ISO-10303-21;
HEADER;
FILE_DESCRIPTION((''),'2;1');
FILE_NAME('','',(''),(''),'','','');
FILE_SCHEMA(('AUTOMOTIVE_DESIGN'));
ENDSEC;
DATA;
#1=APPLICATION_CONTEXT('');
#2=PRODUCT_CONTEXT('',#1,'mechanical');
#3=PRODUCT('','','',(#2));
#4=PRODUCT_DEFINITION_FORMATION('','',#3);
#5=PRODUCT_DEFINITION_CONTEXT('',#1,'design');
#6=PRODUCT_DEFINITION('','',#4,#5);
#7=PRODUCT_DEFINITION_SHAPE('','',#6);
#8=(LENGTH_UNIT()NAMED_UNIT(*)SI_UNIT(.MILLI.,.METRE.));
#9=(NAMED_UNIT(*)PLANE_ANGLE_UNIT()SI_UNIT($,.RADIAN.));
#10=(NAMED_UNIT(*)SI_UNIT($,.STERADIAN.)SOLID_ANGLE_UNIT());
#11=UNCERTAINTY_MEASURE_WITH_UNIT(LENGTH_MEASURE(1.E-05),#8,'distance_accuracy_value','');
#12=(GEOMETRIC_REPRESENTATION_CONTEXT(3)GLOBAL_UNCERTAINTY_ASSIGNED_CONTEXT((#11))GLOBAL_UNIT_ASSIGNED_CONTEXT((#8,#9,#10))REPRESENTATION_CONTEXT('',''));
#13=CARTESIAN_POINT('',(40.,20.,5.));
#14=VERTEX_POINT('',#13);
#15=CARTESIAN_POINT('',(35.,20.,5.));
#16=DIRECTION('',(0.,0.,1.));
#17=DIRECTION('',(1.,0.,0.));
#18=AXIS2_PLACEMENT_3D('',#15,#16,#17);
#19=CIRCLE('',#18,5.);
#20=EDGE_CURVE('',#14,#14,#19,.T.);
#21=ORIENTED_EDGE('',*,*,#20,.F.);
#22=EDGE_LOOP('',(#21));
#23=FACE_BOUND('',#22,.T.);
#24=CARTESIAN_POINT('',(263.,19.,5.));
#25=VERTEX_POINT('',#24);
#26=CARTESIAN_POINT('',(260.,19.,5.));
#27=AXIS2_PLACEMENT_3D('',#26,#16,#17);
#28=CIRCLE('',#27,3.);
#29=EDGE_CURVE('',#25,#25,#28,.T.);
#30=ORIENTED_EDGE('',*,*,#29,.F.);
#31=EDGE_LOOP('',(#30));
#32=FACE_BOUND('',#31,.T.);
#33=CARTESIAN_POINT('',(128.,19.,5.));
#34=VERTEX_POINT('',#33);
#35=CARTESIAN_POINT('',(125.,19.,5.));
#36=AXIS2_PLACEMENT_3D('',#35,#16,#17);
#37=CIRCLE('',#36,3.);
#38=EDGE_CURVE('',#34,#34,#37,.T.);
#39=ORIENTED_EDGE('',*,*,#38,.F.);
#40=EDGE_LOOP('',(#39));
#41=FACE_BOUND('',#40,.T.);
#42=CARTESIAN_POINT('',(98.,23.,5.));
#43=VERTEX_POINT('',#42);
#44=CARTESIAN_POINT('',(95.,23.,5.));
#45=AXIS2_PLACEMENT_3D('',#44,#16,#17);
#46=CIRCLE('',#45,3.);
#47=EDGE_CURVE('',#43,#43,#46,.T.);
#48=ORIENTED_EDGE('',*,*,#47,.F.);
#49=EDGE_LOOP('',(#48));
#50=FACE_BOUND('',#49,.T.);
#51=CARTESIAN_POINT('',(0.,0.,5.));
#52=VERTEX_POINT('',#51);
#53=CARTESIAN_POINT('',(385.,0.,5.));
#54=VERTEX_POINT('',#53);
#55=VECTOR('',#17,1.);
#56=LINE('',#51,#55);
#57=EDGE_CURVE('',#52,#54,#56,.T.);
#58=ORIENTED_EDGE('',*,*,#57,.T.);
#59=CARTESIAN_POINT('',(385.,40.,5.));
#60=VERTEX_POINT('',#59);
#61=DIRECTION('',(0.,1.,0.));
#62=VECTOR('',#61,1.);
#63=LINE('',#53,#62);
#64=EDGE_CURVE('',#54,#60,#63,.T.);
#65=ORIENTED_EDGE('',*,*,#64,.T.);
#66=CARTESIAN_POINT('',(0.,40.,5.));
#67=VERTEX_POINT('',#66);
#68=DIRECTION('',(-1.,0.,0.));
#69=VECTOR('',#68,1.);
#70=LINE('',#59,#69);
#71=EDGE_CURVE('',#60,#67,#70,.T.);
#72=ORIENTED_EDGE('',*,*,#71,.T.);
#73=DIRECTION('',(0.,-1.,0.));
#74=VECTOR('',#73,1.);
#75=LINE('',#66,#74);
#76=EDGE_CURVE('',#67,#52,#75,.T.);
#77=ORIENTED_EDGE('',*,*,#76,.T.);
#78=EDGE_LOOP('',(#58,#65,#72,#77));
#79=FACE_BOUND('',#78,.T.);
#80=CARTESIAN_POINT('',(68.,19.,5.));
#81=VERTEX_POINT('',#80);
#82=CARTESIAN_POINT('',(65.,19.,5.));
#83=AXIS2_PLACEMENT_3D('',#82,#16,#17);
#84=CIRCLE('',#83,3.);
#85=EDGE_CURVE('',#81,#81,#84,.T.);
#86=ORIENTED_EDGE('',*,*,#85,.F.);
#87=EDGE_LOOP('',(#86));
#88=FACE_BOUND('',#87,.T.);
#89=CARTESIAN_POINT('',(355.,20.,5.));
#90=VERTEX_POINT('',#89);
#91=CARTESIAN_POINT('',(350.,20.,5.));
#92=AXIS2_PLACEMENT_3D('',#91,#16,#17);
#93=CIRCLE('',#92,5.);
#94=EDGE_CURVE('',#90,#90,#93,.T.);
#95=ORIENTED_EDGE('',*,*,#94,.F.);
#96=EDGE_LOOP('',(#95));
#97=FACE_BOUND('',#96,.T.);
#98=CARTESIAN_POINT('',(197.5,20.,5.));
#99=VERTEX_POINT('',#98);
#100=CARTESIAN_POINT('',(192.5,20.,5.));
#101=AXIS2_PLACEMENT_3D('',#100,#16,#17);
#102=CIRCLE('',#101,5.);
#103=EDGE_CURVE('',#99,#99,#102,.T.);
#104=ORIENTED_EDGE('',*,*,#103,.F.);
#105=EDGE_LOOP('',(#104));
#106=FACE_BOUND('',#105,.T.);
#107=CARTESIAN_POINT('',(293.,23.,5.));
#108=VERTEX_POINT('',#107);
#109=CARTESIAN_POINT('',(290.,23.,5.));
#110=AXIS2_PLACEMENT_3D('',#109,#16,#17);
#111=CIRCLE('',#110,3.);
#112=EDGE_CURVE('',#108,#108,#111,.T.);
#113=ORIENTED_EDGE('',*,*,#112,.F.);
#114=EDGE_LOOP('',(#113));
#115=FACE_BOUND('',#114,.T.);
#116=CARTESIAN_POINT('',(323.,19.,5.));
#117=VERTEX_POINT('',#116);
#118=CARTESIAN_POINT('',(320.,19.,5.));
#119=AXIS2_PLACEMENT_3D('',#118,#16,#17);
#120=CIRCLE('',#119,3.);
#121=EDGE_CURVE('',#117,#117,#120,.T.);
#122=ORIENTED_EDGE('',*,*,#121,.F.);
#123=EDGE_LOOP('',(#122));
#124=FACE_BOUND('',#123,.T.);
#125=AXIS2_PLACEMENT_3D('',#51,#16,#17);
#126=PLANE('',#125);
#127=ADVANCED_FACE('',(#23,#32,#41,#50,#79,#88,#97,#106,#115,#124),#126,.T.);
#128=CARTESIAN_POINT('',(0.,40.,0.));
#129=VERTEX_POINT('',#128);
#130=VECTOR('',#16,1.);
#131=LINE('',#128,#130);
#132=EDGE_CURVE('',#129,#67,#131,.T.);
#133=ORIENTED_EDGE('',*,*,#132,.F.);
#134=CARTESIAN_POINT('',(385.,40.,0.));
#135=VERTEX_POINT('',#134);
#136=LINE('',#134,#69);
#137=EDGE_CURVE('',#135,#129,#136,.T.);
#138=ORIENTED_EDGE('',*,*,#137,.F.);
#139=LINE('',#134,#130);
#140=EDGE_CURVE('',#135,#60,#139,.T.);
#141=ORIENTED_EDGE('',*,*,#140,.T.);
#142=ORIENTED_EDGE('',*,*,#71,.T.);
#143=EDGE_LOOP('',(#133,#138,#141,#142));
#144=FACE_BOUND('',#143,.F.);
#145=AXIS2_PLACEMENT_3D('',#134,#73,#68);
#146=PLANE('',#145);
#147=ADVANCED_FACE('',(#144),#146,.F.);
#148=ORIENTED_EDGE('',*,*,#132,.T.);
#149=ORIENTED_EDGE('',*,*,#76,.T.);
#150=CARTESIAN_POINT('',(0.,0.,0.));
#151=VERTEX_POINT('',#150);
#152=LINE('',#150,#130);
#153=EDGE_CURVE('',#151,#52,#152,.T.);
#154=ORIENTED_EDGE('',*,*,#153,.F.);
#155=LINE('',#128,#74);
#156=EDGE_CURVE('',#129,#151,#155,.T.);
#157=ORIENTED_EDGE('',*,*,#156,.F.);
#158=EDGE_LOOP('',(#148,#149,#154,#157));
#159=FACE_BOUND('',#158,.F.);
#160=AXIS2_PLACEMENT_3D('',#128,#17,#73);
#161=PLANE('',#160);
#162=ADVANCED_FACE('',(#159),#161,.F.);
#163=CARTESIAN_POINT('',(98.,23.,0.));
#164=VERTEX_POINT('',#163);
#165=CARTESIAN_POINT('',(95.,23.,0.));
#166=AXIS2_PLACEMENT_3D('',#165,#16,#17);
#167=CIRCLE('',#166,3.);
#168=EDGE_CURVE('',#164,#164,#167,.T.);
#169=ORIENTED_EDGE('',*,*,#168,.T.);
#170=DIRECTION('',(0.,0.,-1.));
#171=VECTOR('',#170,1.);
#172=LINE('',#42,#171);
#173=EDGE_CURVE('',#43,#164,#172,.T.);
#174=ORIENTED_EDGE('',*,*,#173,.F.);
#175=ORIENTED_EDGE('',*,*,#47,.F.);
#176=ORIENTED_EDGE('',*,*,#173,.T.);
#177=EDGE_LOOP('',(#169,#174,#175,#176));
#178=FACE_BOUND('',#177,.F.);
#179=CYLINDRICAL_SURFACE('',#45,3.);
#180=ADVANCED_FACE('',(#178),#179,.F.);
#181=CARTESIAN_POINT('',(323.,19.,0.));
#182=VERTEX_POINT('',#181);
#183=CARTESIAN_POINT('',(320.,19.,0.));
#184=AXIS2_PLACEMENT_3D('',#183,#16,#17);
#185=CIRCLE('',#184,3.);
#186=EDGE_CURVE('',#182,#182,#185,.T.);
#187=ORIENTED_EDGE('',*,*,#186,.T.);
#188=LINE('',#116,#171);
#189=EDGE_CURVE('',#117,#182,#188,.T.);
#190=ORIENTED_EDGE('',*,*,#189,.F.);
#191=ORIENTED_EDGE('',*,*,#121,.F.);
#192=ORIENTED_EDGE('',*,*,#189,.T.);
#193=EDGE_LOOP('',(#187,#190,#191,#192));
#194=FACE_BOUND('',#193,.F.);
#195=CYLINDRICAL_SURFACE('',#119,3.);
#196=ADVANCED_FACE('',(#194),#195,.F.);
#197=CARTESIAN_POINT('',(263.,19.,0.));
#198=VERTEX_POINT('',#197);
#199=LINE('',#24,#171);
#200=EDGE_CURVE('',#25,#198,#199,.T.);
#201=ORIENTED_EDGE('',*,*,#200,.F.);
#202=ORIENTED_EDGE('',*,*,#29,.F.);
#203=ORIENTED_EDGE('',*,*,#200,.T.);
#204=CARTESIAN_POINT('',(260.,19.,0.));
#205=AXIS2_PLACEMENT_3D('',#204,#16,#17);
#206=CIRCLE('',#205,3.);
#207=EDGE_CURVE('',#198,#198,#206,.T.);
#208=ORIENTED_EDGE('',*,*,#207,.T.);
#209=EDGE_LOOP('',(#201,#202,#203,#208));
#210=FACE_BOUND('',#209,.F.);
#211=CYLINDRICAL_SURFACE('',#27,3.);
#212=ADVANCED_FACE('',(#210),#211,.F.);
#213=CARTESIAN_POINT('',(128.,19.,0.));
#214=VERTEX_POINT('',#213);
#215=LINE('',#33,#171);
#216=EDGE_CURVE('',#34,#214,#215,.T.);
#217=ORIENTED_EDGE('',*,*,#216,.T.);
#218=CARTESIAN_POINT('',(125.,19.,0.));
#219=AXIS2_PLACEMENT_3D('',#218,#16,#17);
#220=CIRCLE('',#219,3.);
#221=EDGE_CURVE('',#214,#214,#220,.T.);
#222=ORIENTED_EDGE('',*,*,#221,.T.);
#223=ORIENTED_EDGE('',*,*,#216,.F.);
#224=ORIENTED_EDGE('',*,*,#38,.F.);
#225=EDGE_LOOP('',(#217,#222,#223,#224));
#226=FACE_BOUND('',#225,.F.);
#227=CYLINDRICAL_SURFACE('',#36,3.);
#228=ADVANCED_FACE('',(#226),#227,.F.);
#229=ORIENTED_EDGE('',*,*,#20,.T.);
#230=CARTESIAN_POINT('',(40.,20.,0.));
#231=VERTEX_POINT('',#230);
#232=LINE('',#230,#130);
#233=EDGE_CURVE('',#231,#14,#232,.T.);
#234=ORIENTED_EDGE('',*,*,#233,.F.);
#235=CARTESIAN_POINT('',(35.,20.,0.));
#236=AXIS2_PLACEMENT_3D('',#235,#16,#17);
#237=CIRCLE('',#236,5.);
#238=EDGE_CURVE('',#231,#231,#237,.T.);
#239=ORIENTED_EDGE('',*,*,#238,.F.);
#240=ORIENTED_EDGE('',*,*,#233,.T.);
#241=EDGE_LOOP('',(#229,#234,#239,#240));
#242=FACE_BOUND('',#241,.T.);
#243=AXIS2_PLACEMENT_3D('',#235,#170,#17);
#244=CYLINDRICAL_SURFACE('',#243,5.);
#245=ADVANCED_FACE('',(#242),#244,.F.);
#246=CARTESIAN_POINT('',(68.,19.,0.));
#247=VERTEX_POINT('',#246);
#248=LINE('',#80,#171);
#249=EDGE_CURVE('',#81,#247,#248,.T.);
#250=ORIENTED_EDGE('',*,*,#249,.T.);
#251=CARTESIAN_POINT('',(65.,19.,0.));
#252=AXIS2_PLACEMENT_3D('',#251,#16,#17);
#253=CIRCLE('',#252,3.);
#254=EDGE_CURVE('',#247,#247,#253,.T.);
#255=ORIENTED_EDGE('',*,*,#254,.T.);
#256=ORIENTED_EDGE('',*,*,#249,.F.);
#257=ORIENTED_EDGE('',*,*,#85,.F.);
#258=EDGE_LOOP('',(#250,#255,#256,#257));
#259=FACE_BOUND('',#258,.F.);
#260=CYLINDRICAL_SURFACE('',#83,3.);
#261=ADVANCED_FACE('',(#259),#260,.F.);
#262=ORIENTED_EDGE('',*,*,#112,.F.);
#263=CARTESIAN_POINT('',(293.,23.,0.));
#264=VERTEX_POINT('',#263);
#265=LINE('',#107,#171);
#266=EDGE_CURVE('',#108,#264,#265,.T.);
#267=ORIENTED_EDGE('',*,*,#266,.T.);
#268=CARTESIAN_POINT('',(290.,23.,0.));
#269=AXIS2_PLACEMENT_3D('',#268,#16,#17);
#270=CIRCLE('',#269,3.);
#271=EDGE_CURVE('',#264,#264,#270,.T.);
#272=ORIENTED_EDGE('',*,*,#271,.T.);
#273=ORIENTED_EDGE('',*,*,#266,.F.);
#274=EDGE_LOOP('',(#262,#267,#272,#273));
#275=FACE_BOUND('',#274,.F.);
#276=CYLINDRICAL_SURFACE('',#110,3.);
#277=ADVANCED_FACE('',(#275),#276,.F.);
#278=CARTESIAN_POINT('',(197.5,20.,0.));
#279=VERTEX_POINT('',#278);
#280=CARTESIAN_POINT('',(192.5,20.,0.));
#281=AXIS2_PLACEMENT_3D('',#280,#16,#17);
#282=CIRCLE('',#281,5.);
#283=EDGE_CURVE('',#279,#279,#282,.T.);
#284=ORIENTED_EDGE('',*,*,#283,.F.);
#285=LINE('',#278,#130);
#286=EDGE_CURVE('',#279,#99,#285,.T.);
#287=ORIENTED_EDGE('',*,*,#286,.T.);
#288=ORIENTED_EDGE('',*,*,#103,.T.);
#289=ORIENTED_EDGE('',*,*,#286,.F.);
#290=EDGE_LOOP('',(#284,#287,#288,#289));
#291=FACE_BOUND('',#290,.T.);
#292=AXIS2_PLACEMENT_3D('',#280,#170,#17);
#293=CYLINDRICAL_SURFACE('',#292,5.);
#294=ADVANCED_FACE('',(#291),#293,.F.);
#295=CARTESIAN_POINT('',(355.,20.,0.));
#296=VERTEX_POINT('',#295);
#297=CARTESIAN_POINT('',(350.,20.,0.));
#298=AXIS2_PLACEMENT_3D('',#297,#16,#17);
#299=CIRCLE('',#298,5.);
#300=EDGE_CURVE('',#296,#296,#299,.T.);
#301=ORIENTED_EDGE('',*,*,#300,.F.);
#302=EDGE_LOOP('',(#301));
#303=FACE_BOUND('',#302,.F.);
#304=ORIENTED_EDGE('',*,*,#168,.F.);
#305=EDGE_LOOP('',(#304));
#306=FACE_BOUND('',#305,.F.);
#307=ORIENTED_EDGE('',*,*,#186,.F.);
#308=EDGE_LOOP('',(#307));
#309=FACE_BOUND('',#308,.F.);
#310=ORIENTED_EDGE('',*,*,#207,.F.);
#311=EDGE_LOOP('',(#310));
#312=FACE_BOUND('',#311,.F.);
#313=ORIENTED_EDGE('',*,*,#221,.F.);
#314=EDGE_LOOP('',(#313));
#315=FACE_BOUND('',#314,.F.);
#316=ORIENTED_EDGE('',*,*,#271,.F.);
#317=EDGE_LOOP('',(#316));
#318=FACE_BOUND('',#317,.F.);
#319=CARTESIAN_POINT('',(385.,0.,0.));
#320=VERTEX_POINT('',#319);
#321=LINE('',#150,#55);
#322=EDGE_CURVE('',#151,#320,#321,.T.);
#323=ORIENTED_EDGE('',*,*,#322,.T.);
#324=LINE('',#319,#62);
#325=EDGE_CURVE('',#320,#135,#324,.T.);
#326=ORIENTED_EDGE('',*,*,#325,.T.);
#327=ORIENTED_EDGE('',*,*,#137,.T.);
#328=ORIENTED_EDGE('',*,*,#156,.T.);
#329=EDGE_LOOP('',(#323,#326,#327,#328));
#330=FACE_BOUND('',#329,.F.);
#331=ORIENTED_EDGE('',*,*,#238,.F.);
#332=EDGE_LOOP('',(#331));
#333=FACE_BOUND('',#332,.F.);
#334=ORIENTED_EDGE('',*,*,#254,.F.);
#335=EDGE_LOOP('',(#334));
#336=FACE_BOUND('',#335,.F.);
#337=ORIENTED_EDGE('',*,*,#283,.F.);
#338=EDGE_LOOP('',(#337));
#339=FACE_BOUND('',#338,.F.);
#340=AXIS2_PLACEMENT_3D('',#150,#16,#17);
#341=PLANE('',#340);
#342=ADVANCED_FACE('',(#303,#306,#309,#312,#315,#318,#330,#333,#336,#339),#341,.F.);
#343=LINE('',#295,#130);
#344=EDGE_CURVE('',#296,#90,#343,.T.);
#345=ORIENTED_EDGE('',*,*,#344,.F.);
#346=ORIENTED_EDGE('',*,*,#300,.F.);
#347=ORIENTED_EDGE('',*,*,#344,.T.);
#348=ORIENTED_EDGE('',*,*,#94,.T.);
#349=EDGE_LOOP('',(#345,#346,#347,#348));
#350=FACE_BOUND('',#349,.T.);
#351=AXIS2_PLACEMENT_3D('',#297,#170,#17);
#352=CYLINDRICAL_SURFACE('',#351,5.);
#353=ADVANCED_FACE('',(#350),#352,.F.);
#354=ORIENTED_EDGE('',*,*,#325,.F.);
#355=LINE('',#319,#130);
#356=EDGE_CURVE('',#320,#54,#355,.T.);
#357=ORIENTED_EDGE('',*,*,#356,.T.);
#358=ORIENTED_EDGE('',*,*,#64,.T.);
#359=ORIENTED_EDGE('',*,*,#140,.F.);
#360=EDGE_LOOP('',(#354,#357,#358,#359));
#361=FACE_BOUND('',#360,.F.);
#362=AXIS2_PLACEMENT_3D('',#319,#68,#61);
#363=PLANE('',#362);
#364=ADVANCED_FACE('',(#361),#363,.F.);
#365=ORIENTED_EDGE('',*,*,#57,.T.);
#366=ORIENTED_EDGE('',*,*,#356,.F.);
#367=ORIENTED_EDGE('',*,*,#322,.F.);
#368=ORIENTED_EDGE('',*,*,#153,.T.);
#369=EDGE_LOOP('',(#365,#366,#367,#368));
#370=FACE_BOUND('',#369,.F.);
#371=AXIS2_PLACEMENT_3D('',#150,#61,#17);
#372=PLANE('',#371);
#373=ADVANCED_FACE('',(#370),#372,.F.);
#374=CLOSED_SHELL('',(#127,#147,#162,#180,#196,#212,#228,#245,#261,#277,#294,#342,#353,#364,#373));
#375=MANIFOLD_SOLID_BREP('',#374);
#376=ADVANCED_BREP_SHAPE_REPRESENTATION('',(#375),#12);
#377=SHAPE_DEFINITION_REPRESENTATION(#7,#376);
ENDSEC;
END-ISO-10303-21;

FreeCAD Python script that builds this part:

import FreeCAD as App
import Part
import Sketcher

V = App.Vector
Q = App.Units.Quantity


def add_polygon(sketch, points):
    """Adds a closed chain of lines whose ends are joined by coincident constraints."""
    first, n = sketch.GeometryCount, len(points)
    for a, b in zip(points, points[1:] + points[:1]):
        sketch.addGeometry(Part.LineSegment(App.Vector(*a, 0), App.Vector(*b, 0)), False)
    for i in range(n):
        sketch.addConstraint(Sketcher.Constraint("Coincident", first + i, 2, first + (i + 1) % n, 1))

doc = App.newDocument("Part")
body = doc.addObject("PartDesign::Body", "Body")

# Sketch on XY plane
sketch1 = doc.addObject("Sketcher::SketchObject", "Sketch")
body.addObject(sketch1)
sketch1.AttachmentSupport = (doc.XY_Plane, [""])
sketch1.MapMode = "FlatFace"
add_polygon(sketch1, [(0, 40), (0, 0), (385, 0), (385, 40)])  # lines 0-3
sketch1.addGeometry(Part.Circle(V(35, 20, 0), V(0, 0, 1), 5), False)  # 4
sketch1.addGeometry(Part.Circle(V(192, 20, 0), V(0, 0, 1), 5), False)  # 5
sketch1.addGeometry(Part.Circle(V(350, 20, 0), V(0, 0, 1), 5), False)  # 6
sketch1.addConstraint(Sketcher.Constraint("Vertical", 0))
sketch1.addConstraint(Sketcher.Constraint("Horizontal", 1))
sketch1.addConstraint(Sketcher.Constraint("Vertical", 2))
sketch1.addConstraint(Sketcher.Constraint("Horizontal", 3))
sketch1.addConstraint(Sketcher.Constraint("Coincident", 0, 2, -1, 1))
sketch1.addConstraint(Sketcher.Constraint("Equal", 4, 5))
sketch1.addConstraint(Sketcher.Constraint("Equal", 5, 6))
sketch1.addConstraint(Sketcher.Constraint("Horizontal", 4, 3, 5, 3))
sketch1.addConstraint(Sketcher.Constraint("Horizontal", 5, 3, 6, 3))
sketch1.addConstraint(Sketcher.Constraint("Diameter", 4, Q("10 mm")))
sketch1.addConstraint(Sketcher.Constraint("DistanceX", 1, 1, 1, 2, Q("385 mm")))
sketch1.addConstraint(Sketcher.Constraint("DistanceY", 0, 2, 0, 1, Q("40 mm")))
sketch1.addConstraint(Sketcher.Constraint("DistanceX", -1, 1, 4, 3, Q("35 mm")))
sketch1.addConstraint(Sketcher.Constraint("DistanceX", 6, 3, 1, 2, Q("35 mm")))
sketch1.addConstraint(Sketcher.Constraint("DistanceY", -1, 1, 4, 3, Q("20 mm")))
sketch1.addConstraint(Sketcher.Constraint("DistanceX", -1, 1, 5, 3, Q("192.5 mm")))
pad1 = doc.addObject("PartDesign::Pad", "Pad")
body.addObject(pad1)
pad1.Profile = sketch1
pad1.Length = 5

# Sketch on XY plane
sketch2 = doc.addObject("Sketcher::SketchObject", "Sketch001")
body.addObject(sketch2)
sketch2.AttachmentSupport = (doc.XY_Plane, [""])
sketch2.MapMode = "FlatFace"
sketch2.AttachmentOffset = App.Placement(V(0, 0, 5), App.Rotation())
sketch2.addGeometry(Part.Circle(V(65, 19, 0), V(0, 0, 1), 3), False)
sketch2.addGeometry(Part.Circle(V(95, 23, 0), V(0, 0, 1), 3), False)
sketch2.addGeometry(Part.Circle(V(125, 19, 0), V(0, 0, 1), 3), False)
sketch2.addGeometry(Part.Circle(V(260, 19, 0), V(0, 0, 1), 3), False)
sketch2.addGeometry(Part.Circle(V(290, 23, 0), V(0, 0, 1), 3), False)
sketch2.addGeometry(Part.Circle(V(320, 19, 0), V(0, 0, 1), 3), False)
sketch2.addConstraint(Sketcher.Constraint("Equal", 0, 1))
sketch2.addConstraint(Sketcher.Constraint("Equal", 1, 2))
sketch2.addConstraint(Sketcher.Constraint("Equal", 2, 3))
sketch2.addConstraint(Sketcher.Constraint("Equal", 3, 4))
sketch2.addConstraint(Sketcher.Constraint("Equal", 4, 5))
sketch2.addConstraint(Sketcher.Constraint("Horizontal", 0, 3, 2, 3))
sketch2.addConstraint(Sketcher.Constraint("Horizontal", 2, 3, 3, 3))
sketch2.addConstraint(Sketcher.Constraint("Horizontal", 1, 3, 4, 3))
sketch2.addConstraint(Sketcher.Constraint("Horizontal", 3, 3, 5, 3))
sketch2.addConstraint(Sketcher.Constraint("Diameter", 0, Q("6 mm")))
sketch2.addConstraint(Sketcher.Constraint("DistanceX", -1, 1, 0, 3, Q("65 mm")))
sketch2.addConstraint(Sketcher.Constraint("DistanceY", -1, 1, 0, 3, Q("19 mm")))
sketch2.addConstraint(Sketcher.Constraint("DistanceX", 0, 3, 1, 3, Q("30 mm")))
sketch2.addConstraint(Sketcher.Constraint("DistanceY", 0, 3, 1, 3, Q("4 mm")))
sketch2.addConstraint(Sketcher.Constraint("DistanceX", 1, 3, 2, 3, Q("30 mm")))
sketch2.addConstraint(Sketcher.Constraint("DistanceX", 3, 3, 4, 3, Q("30 mm")))
sketch2.addConstraint(Sketcher.Constraint("DistanceX", 4, 3, 5, 3, Q("30 mm")))
sketch2.addConstraint(Sketcher.Constraint("DistanceX", -1, 1, 3, 3, Q("260 mm")))
pocket1 = doc.addObject("PartDesign::Pocket", "Pocket")
body.addObject(pocket1)
pocket1.Profile = sketch2
pocket1.Length = 10

doc.recompute()
